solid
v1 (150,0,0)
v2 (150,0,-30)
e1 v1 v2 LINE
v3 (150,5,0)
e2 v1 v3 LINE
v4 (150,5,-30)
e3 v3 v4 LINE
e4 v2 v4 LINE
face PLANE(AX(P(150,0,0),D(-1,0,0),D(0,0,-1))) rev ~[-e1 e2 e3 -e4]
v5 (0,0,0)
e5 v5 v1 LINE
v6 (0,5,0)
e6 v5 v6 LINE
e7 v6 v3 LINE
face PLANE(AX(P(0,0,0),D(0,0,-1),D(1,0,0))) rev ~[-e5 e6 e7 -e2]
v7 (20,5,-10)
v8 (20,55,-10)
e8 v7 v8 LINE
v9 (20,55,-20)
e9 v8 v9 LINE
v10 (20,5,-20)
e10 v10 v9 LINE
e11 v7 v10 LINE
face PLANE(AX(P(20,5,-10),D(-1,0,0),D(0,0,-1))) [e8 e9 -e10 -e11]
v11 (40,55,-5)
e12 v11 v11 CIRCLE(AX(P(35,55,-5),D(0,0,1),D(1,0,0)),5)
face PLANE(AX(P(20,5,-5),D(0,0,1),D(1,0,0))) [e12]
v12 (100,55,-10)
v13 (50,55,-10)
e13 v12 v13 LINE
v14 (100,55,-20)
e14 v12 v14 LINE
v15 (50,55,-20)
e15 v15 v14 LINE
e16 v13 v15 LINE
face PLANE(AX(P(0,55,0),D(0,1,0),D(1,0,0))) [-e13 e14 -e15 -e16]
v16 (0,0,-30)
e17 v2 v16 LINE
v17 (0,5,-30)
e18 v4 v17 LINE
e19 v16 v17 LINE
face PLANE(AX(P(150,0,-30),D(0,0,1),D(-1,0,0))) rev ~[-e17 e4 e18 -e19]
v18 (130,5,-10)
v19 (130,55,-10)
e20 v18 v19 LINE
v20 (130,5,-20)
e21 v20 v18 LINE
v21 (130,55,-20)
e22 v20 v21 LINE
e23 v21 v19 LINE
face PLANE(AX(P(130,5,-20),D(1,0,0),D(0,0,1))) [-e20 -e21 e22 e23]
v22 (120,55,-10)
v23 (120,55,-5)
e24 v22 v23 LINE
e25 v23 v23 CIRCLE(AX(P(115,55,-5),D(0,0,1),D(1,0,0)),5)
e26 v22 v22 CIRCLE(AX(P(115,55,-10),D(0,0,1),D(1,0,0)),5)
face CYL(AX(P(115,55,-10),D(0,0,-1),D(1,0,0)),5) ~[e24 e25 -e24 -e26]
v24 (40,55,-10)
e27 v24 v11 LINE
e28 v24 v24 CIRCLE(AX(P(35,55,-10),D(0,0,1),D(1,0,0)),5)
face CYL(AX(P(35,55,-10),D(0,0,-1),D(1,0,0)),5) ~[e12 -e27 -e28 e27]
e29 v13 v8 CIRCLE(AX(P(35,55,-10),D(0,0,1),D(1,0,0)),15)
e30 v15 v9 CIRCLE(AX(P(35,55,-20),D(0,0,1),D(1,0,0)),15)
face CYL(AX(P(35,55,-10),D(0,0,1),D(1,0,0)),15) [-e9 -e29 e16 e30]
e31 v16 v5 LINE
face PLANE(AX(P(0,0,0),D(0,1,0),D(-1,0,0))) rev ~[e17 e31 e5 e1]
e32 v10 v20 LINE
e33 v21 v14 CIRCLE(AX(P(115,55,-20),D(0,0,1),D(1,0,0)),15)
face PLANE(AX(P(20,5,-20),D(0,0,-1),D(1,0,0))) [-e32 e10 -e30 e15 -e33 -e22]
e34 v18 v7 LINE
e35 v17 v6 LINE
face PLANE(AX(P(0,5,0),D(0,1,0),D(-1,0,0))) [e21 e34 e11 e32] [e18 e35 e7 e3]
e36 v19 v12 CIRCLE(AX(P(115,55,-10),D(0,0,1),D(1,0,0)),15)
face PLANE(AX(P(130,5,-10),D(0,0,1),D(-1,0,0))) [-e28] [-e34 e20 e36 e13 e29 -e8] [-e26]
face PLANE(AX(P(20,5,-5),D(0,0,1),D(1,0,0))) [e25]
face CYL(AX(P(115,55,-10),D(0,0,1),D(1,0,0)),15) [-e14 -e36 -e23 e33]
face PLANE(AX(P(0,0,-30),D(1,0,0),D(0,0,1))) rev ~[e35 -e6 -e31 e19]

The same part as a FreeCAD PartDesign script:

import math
import FreeCAD as App
import Part
import Sketcher

V = App.Vector
Q = App.Units.Quantity


def add_polygon(sketch, points):
    """Adds a closed chain of lines whose ends are joined by coincident constraints."""
    first, n = sketch.GeometryCount, len(points)
    for a, b in zip(points, points[1:] + points[:1]):
        sketch.addGeometry(Part.LineSegment(App.Vector(*a, 0), App.Vector(*b, 0)), False)
    for i in range(n):
        sketch.addConstraint(Sketcher.Constraint("Coincident", first + i, 2, first + (i + 1) % n, 1))

doc = App.newDocument("Part")
body = doc.addObject("PartDesign::Body", "Body")

# Sketch on XZ plane
sketch1 = body.newObject("Sketcher::SketchObject", "Sketch")
sketch1.AttachmentSupport = (doc.getObject("XZ_Plane"), [""])
sketch1.MapMode = "FlatFace"
add_polygon(sketch1, [(0, -30), (0, 0), (150, 0), (150, -30)])  # lines 0-3
sketch1.addConstraint(Sketcher.Constraint("Vertical", 0))
sketch1.addConstraint(Sketcher.Constraint("Horizontal", 1))
sketch1.addConstraint(Sketcher.Constraint("Vertical", 2))
sketch1.addConstraint(Sketcher.Constraint("Horizontal", 3))
sketch1.addConstraint(Sketcher.Constraint("Coincident", 0, 2, -1, 1))
sketch1.addConstraint(Sketcher.Constraint("DistanceX", 1, 1, 1, 2, Q("150 mm")))
sketch1.addConstraint(Sketcher.Constraint("DistanceY", 0, 1, 0, 2, Q("30 mm")))
pad1 = body.newObject("PartDesign::Pad", "Pad")
pad1.Profile = sketch1
pad1.Length = 5
pad1.Reversed = True

# Sketch on XZ plane
sketch2 = body.newObject("Sketcher::SketchObject", "Sketch001")
sketch2.AttachmentSupport = (doc.getObject("XZ_Plane"), [""])
sketch2.MapMode = "FlatFace"
sketch2.AttachmentOffset = App.Placement(V(0, 0, -5), App.Rotation())
add_polygon(sketch2, [(130, -20), (20, -20), (20, -10), (130, -10)])  # lines 0-3
sketch2.addConstraint(Sketcher.Constraint("Horizontal", 0))
sketch2.addConstraint(Sketcher.Constraint("Vertical", 1))
sketch2.addConstraint(Sketcher.Constraint("Horizontal", 2))
sketch2.addConstraint(Sketcher.Constraint("Vertical", 3))
sketch2.addConstraint(Sketcher.Constraint("DistanceY", 1, 1, 1, 2, Q("10 mm")))
sketch2.addConstraint(Sketcher.Constraint("DistanceX", -1, 1, 0, 2, Q("20 mm")))
sketch2.addConstraint(Sketcher.Constraint("DistanceY", 0, 2, -1, 1, Q("20 mm")))
sketch2.addConstraint(Sketcher.Constraint("DistanceX", 0, 2, 0, 1, Q("110 mm")))
pad2 = body.newObject("PartDesign::Pad", "Pad001")
pad2.Profile = sketch2
pad2.Length = 50
pad2.Reversed = True

# Sketch on XY plane
sketch3 = body.newObject("Sketcher::SketchObject", "Sketch002")
sketch3.AttachmentSupport = (doc.getObject("XY_Plane"), [""])
sketch3.MapMode = "FlatFace"
sketch3.AttachmentOffset = App.Placement(V(0, 0, -10), App.Rotation())
sketch3.addGeometry(Part.LineSegment(V(20, 55, 0), V(50, 55, 0)), False)
sketch3.addGeometry(Part.ArcOfCircle(Part.Circle(V(35, 55, 0), V(0, 0, 1), 15), math.radians(0), math.radians(180)), False)
sketch3.addGeometry(Part.ArcOfCircle(Part.Circle(V(115, 55, 0), V(0, 0, 1), 15), math.radians(0), math.radians(180)), False)
sketch3.addGeometry(Part.LineSegment(V(100, 55, 0), V(130, 55, 0)), False)
sketch3.addConstraint(Sketcher.Constraint("Coincident", 0, 1, 1, 2))
sketch3.addConstraint(Sketcher.Constraint("Coincident", 1, 1, 0, 2))
sketch3.addConstraint(Sketcher.Constraint("Coincident", 2, 1, 3, 2))
sketch3.addConstraint(Sketcher.Constraint("Coincident", 3, 1, 2, 2))
sketch3.addConstraint(Sketcher.Constraint("Horizontal", 0))
sketch3.addConstraint(Sketcher.Constraint("Horizontal", 3))
sketch3.addConstraint(Sketcher.Constraint("Equal", 1, 2))
sketch3.addConstraint(Sketcher.Constraint("Horizontal", 1, 3, 2, 3))
sketch3.addConstraint(Sketcher.Constraint("Horizontal", 2, 3, 0, 1))
sketch3.addConstraint(Sketcher.Constraint("Horizontal", 1, 1, 2, 1))
sketch3.addConstraint(Sketcher.Constraint("Radius", 1, Q("15 mm")))
sketch3.addConstraint(Sketcher.Constraint("DistanceX", -1, 1, 1, 3, Q("35 mm")))
sketch3.addConstraint(Sketcher.Constraint("DistanceY", -1, 1, 1, 3, Q("55 mm")))
sketch3.addConstraint(Sketcher.Constraint("DistanceX", -1, 1, 2, 3, Q("115 mm")))
pad3 = body.newObject("PartDesign::Pad", "Pad002")
pad3.Profile = sketch3
pad3.Length = 10
pad3.Reversed = True

# Sketch on XY plane
sketch4 = body.newObject("Sketcher::SketchObject", "Sketch003")
sketch4.AttachmentSupport = (doc.getObject("XY_Plane"), [""])
sketch4.MapMode = "FlatFace"
sketch4.AttachmentOffset = App.Placement(V(0, 0, -10), App.Rotation())
sketch4.addGeometry(Part.Circle(V(35, 55, 0), V(0, 0, 1), 5), False)
sketch4.addGeometry(Part.Circle(V(115, 55, 0), V(0, 0, 1), 5), False)
sketch4.addConstraint(Sketcher.Constraint("Equal", 0, 1))
sketch4.addConstraint(Sketcher.Constraint("Horizontal", 0, 3, 1, 3))
sketch4.addConstraint(Sketcher.Constraint("Diameter", 0, Q("10 mm")))
sketch4.addConstraint(Sketcher.Constraint("DistanceX", -1, 1, 0, 3, Q("35 mm")))
sketch4.addConstraint(Sketcher.Constraint("DistanceY", -1, 1, 0, 3, Q("55 mm")))
sketch4.addConstraint(Sketcher.Constraint("DistanceX", -1, 1, 1, 3, Q("115 mm")))
pad4 = body.newObject("PartDesign::Pad", "Pad003")
pad4.Profile = sketch4
pad4.Length = 5

doc.recompute()
